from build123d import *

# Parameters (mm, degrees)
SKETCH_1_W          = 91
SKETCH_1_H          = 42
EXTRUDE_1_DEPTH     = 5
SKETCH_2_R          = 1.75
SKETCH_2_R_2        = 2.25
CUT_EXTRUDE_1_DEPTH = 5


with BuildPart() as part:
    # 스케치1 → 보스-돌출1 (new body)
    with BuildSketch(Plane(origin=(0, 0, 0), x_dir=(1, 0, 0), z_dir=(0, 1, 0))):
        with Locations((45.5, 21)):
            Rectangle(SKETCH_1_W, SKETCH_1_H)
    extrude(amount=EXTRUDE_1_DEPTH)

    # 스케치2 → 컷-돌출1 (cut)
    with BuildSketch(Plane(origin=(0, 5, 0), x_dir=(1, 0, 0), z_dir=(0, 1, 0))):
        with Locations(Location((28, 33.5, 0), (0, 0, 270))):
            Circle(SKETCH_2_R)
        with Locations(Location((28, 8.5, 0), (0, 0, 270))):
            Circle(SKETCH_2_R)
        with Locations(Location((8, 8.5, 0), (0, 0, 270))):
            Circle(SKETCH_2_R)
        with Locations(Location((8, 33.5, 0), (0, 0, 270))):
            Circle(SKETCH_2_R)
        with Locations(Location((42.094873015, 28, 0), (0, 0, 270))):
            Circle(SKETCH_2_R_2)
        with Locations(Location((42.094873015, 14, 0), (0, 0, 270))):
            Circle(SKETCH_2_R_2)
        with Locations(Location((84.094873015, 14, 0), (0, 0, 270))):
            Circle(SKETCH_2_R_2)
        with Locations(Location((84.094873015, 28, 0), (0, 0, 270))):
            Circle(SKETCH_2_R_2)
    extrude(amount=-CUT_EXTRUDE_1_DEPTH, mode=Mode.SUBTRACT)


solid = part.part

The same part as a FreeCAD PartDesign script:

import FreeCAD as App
import Part
import Sketcher
Q = App.Units.Quantity


def add_polygon(sketch, points):
    """Adds a closed chain of lines whose ends are joined by coincident constraints."""
    first, n = sketch.GeometryCount, len(points)
    for a, b in zip(points, points[1:] + points[:1]):
        sketch.addGeometry(Part.LineSegment(App.Vector(*a, 0), App.Vector(*b, 0)), False)
    for i in range(n):
        sketch.addConstraint(Sketcher.Constraint("Coincident", first + i, 2, first + (i + 1) % n, 1))

doc = App.newDocument("Part")
body = doc.addObject("PartDesign::Body", "Body")

sketch1 = doc.addObject("Sketcher::SketchObject", "Sketch")
body.addObject(sketch1)
sketch1.AttachmentSupport = (doc.XZ_Plane, [""])
sketch1.MapMode = "FlatFace"
add_polygon(sketch1, [(0, -42), (0, 0), (91, 0), (91, -42)])
sketch1.addConstraint([
    Sketcher.Constraint("Vertical", 0),
    Sketcher.Constraint("Horizontal", 1),
    Sketcher.Constraint("Vertical", 2),
    Sketcher.Constraint("Horizontal", 3),
    Sketcher.Constraint("Coincident", 0, 2, -1, 1),
    Sketcher.Constraint("DistanceX", 1, 1, 1, 2, Q("91 mm")),
    Sketcher.Constraint("DistanceY", 0, 1, 0, 2, Q("42 mm")),
])
pad1 = doc.addObject("PartDesign::Pad", "Pad")
body.addObject(pad1)
pad1.Profile = sketch1
pad1.Length = 5
pad1.Reversed = True

sketch2 = doc.addObject("Sketcher::SketchObject", "Sketch001")
body.addObject(sketch2)
sketch2.AttachmentSupport = (doc.XZ_Plane, [""])
sketch2.MapMode = "FlatFace"
sketch2.AttachmentOffset = App.Placement(App.Vector(0, 0, -5), App.Rotation())
sketch2.addGeometry([
    Part.Circle(App.Vector(28, -33.5, 0), App.Vector(0, 0, 1), 1.75),
    Part.Circle(App.Vector(28, -8.5, 0), App.Vector(0, 0, 1), 1.75),
    Part.Circle(App.Vector(8, -8.5, 0), App.Vector(0, 0, 1), 1.75),
    Part.Circle(App.Vector(8, -33.5, 0), App.Vector(0, 0, 1), 1.75),
    Part.Circle(App.Vector(42.094873, -28, 0), App.Vector(0, 0, 1), 2.25),
    Part.Circle(App.Vector(42.094873, -14, 0), App.Vector(0, 0, 1), 2.25),
    Part.Circle(App.Vector(84.094873, -14, 0), App.Vector(0, 0, 1), 2.25),
    Part.Circle(App.Vector(84.094873, -28, 0), App.Vector(0, 0, 1), 2.25),
], False)
sketch2.addConstraint([
    Sketcher.Constraint("Equal", 0, 1),
    Sketcher.Constraint("Equal", 1, 2),
    Sketcher.Constraint("Equal", 2, 3),
    Sketcher.Constraint("Equal", 4, 5),
    Sketcher.Constraint("Equal", 5, 6),
    Sketcher.Constraint("Equal", 6, 7),
    Sketcher.Constraint("Horizontal", 1, 3, 2, 3),
    Sketcher.Constraint("Horizontal", 0, 3, 3, 3),
    Sketcher.Constraint("Horizontal", 5, 3, 6, 3),
    Sketcher.Constraint("Horizontal", 4, 3, 7, 3),
    Sketcher.Constraint("Vertical", 0, 3, 1, 3),
    Sketcher.Constraint("Vertical", 2, 3, 3, 3),
    Sketcher.Constraint("Vertical", 4, 3, 5, 3),
    Sketcher.Constraint("Vertical", 6, 3, 7, 3),
    Sketcher.Constraint("Diameter", 0, Q("3.5 mm")),
    Sketcher.Constraint("Diameter", 4, Q("4.5 mm")),
    Sketcher.Constraint("DistanceX", -1, 1, 0, 3, Q("28 mm")),
    Sketcher.Constraint("DistanceX", -1, 1, 2, 3, Q("8 mm")),
    Sketcher.Constraint("DistanceY", 4, 3, -1, 1, Q("28 mm")),
    Sketcher.Constraint("DistanceY", 5, 3, -1, 1, Q("14 mm")),
    Sketcher.Constraint("DistanceY", 0, 3, 1, 3, Q("25 mm")),
    Sketcher.Constraint("DistanceX", 5, 3, 6, 3, Q("42 mm")),
    Sketcher.Constraint("DistanceY", 0, 3, -1, 1, Q("33.5 mm")),
    Sketcher.Constraint("DistanceX", -1, 1, 4, 3, Q("42.094873 mm")),
])
pocket1 = doc.addObject("PartDesign::Pocket", "Pocket")
body.addObject(pocket1)
pocket1.Profile = sketch2
pocket1.Length = 5
pocket1.Reversed = True

doc.recompute()
